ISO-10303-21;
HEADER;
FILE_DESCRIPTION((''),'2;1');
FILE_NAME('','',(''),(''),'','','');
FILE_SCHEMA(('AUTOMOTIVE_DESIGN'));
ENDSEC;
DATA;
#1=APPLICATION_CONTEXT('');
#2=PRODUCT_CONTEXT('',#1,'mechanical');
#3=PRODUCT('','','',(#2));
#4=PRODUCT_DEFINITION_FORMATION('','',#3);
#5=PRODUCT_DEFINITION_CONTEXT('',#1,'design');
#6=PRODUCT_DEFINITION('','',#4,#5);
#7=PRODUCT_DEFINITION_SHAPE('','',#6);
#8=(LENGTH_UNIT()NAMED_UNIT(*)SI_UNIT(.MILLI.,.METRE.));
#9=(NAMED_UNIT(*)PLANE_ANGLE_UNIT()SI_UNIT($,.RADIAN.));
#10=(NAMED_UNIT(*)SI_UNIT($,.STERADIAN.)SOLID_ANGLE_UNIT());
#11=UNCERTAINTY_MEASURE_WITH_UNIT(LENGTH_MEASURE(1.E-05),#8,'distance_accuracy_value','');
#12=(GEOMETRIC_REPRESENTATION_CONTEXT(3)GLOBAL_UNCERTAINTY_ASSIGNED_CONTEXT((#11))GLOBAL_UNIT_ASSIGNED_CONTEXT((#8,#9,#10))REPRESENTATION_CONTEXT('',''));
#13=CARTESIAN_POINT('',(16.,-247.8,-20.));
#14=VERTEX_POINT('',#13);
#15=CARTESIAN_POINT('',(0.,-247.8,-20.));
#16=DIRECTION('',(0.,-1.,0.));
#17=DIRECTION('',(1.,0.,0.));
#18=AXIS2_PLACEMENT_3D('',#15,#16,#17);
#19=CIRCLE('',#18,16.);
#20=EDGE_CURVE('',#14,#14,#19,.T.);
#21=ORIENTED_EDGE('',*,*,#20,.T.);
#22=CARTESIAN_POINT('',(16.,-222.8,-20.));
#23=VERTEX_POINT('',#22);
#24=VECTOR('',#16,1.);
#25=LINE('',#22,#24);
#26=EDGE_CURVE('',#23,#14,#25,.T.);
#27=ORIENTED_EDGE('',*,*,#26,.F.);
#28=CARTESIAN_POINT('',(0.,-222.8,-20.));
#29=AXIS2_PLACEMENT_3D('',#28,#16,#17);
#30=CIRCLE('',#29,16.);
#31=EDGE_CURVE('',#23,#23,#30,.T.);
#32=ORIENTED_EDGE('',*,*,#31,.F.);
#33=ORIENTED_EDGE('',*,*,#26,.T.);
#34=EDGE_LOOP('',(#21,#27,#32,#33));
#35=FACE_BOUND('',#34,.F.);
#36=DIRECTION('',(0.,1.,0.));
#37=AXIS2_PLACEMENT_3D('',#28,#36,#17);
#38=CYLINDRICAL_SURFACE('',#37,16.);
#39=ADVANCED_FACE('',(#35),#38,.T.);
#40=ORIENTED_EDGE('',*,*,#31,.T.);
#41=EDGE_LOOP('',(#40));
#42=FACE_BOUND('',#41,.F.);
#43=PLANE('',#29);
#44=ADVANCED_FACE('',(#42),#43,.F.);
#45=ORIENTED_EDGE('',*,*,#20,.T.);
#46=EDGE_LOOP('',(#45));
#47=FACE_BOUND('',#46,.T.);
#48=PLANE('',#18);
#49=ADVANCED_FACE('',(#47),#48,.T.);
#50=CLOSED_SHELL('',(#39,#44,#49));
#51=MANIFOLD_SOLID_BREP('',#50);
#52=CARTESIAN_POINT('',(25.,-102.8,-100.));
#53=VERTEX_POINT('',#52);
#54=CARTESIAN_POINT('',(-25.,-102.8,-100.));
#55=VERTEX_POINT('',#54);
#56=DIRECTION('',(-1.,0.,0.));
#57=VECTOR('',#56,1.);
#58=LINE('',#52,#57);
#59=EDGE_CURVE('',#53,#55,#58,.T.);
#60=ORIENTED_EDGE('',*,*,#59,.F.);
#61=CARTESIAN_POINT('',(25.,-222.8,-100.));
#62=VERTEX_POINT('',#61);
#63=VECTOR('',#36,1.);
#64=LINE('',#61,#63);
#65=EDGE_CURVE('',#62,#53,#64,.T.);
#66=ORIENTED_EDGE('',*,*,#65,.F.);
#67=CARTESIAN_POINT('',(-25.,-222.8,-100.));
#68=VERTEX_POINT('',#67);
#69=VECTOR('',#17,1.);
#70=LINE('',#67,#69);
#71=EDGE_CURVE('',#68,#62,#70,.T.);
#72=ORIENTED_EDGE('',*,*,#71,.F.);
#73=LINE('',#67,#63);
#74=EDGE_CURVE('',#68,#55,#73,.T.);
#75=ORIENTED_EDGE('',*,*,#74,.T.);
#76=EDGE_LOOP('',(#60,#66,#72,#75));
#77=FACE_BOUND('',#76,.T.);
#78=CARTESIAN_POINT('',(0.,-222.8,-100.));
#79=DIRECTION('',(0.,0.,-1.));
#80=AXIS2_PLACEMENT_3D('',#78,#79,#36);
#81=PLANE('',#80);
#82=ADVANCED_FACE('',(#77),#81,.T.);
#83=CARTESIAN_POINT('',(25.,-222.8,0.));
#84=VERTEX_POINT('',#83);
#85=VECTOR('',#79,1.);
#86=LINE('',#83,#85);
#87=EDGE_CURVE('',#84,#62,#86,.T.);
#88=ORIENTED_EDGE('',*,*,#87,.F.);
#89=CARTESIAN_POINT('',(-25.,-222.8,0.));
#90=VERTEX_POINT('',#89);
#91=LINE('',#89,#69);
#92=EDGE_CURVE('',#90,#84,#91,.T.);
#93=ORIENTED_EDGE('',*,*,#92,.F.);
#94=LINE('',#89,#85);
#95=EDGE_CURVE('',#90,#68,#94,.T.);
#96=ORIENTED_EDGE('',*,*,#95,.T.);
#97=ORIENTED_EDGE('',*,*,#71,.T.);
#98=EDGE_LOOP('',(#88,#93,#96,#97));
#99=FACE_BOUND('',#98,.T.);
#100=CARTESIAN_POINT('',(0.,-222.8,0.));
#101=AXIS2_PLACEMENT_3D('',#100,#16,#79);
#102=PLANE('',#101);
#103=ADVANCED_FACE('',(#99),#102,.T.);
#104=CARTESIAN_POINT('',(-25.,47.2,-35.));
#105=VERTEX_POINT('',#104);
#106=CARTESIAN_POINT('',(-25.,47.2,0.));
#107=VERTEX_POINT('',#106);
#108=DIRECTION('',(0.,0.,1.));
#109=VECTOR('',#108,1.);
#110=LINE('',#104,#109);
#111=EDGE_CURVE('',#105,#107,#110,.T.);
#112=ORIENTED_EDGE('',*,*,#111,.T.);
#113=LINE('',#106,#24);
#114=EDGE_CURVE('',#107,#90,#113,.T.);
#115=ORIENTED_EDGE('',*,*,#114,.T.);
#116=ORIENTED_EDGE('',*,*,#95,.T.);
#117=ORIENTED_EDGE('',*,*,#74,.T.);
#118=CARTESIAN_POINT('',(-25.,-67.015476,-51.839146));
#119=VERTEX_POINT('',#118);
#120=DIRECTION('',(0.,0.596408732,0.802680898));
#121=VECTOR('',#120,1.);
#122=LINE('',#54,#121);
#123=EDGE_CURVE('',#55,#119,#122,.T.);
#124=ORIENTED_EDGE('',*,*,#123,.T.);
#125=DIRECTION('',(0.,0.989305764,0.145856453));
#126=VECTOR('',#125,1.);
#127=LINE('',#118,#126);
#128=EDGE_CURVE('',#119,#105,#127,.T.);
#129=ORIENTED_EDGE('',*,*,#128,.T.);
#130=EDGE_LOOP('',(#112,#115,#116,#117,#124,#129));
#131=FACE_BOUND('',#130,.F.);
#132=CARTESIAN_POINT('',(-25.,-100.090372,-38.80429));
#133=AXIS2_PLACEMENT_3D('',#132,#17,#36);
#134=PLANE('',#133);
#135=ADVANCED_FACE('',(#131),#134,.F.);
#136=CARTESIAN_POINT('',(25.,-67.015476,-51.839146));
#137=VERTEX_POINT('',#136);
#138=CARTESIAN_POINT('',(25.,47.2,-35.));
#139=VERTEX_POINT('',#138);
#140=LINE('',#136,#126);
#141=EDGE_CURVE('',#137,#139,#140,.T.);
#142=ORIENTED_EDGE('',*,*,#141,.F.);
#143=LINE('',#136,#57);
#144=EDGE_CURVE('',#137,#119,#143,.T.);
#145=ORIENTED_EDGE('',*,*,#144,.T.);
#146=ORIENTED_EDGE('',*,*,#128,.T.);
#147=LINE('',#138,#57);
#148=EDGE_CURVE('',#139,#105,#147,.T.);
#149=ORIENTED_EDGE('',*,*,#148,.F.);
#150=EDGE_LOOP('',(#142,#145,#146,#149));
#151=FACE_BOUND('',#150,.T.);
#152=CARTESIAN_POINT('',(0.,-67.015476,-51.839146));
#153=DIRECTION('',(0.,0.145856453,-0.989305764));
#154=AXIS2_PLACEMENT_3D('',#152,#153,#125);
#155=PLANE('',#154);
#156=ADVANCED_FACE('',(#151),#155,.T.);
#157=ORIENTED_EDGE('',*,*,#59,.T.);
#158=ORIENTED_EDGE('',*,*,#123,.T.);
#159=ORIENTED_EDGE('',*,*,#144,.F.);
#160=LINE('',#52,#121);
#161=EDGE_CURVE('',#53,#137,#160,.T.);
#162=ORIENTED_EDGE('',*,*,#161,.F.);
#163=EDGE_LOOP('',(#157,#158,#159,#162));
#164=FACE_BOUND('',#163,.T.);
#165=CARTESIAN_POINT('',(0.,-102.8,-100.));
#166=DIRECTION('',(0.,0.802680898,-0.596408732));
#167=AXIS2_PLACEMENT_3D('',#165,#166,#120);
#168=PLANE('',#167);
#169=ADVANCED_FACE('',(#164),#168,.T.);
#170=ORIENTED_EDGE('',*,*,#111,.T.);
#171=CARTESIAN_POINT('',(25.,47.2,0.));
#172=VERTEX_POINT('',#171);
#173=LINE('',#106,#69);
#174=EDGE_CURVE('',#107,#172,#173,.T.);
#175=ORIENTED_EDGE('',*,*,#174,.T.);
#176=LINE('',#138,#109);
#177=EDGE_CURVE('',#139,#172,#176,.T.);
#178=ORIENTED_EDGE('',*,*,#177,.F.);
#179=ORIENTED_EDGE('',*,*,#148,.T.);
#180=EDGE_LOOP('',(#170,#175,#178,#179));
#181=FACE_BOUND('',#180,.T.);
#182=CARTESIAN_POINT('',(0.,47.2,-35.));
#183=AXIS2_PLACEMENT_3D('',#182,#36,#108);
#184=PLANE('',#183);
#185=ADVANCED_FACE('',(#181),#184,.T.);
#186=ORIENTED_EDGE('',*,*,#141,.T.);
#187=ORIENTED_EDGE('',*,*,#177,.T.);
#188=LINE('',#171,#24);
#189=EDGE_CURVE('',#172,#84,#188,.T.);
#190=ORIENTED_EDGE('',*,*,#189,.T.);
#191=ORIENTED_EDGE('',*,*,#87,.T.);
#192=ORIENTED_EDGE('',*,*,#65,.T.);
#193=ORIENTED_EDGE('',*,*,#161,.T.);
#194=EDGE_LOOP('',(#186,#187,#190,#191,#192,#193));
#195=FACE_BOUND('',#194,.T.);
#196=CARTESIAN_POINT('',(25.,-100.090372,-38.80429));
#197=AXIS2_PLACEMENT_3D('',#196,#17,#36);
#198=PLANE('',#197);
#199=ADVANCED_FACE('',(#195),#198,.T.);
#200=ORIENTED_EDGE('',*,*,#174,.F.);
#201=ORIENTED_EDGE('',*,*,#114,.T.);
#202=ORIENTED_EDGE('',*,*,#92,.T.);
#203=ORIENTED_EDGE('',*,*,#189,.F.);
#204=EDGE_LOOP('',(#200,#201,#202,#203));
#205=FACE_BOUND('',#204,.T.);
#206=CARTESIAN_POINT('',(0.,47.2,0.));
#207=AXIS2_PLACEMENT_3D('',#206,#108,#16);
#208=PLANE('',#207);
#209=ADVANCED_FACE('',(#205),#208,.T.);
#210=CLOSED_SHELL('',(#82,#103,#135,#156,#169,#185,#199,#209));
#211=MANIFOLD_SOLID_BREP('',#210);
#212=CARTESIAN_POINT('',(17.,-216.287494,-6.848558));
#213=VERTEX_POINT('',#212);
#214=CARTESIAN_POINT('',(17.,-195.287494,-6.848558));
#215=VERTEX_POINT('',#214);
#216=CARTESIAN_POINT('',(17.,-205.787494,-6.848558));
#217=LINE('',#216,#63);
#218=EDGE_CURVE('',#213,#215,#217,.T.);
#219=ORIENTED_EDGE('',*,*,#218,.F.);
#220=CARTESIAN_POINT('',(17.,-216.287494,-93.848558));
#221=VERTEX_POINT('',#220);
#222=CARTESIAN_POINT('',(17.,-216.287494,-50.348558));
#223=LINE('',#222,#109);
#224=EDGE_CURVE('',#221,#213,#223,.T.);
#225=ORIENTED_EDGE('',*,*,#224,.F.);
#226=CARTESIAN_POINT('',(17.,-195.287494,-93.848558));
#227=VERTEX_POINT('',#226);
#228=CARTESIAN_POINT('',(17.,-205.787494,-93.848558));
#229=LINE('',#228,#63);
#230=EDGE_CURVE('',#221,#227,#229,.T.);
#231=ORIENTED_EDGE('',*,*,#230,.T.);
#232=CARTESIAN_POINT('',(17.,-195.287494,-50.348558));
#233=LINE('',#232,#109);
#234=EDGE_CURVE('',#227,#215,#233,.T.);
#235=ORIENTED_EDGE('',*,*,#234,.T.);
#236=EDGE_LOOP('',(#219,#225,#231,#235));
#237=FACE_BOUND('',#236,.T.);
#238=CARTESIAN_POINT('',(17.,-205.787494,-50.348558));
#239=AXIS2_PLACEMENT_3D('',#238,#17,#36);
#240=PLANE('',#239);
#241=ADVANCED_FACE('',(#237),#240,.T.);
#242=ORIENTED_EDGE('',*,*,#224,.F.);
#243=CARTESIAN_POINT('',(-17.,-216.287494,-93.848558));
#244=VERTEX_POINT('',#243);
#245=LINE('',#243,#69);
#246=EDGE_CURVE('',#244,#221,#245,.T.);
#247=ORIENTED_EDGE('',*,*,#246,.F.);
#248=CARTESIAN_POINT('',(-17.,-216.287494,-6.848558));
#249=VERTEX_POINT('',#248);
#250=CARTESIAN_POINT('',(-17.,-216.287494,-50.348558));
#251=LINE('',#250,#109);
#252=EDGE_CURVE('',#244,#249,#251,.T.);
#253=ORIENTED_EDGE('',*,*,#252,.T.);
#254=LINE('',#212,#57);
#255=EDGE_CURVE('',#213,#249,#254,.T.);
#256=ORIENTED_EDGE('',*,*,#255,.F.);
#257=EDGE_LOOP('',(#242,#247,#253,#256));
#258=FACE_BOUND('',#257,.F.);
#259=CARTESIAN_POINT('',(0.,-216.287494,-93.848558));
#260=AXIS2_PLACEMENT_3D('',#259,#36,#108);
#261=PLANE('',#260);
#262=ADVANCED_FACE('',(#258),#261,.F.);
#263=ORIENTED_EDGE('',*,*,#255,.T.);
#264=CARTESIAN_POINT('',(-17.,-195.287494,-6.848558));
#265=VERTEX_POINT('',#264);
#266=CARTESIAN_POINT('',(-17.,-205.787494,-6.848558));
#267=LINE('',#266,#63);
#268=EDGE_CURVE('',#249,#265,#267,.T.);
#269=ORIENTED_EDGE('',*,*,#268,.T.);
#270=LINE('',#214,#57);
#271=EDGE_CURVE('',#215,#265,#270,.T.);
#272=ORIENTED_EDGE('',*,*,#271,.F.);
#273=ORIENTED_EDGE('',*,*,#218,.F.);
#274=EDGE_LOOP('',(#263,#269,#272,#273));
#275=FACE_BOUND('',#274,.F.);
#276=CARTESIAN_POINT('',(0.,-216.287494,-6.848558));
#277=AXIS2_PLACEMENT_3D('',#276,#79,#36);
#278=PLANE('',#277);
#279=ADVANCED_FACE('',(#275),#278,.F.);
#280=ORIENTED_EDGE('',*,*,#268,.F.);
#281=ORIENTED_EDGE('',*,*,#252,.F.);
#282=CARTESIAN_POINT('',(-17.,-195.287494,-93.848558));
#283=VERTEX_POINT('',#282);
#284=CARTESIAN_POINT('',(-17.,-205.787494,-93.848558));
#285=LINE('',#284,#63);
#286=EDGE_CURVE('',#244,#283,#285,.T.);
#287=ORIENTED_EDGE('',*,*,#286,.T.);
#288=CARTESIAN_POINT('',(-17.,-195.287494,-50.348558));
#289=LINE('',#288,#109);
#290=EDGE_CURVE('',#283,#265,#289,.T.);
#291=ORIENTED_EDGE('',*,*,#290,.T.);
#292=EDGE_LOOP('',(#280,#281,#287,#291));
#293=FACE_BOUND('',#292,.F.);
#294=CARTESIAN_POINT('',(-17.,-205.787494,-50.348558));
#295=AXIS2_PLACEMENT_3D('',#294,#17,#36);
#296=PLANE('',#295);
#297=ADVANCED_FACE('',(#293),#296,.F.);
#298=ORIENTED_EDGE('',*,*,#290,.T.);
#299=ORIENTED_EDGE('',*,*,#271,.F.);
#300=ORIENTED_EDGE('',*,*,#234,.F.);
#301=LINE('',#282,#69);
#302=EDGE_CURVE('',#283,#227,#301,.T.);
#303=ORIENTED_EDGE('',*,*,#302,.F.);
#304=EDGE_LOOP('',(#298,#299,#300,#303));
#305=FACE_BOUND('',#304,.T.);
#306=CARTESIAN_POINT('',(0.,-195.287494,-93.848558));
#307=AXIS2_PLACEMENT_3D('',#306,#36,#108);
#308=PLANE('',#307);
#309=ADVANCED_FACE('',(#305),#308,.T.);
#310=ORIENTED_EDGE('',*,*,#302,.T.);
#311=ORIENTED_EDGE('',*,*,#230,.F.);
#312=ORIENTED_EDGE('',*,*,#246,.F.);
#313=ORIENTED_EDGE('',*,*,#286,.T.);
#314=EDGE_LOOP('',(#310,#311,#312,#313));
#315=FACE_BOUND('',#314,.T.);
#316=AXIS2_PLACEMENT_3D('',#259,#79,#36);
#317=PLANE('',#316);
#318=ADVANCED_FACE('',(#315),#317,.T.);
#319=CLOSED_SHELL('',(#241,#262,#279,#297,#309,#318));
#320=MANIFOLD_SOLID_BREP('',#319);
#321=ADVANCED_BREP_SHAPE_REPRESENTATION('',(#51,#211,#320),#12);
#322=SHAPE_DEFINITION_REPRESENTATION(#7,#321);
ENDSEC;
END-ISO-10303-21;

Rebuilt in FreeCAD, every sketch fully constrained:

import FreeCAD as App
import Part
import Sketcher

V = App.Vector
Q = App.Units.Quantity

doc = App.newDocument("Part")
body = doc.addObject("PartDesign::Body", "Body")

# Sketch on YZ plane
sketch1 = body.newObject("Sketcher::SketchObject", "Sketch")
sketch1.AttachmentSupport = (doc.getObject("YZ_Plane"), [""])
sketch1.MapMode = "FlatFace"
sketch1.addGeometry([
    Part.LineSegment(V(47, -35, 0), V(47, 0, 0)),  # 0
    Part.LineSegment(V(47, 0, 0), V(-223, 0, 0)),  # 1
    Part.LineSegment(V(-223, 0, 0), V(-223, -100, 0)),  # 2
    Part.LineSegment(V(-223, -100, 0), V(-103, -100, 0)),  # 3
    Part.LineSegment(V(-103, -100, 0), V(-67, -52, 0)),  # 4
    Part.LineSegment(V(-67, -52, 0), V(47, -35, 0)),  # 5
], False)
sketch1.addConstraint([
    Sketcher.Constraint("Coincident", 0, 2, 1, 1),
    Sketcher.Constraint("Coincident", 1, 2, 2, 1),
    Sketcher.Constraint("Coincident", 2, 2, 3, 1),
    Sketcher.Constraint("Coincident", 3, 2, 4, 1),
    Sketcher.Constraint("Coincident", 4, 2, 5, 1),
    Sketcher.Constraint("Coincident", 5, 2, 0, 1),
    Sketcher.Constraint("Vertical", 0),
    Sketcher.Constraint("Horizontal", 1),
    Sketcher.Constraint("Vertical", 2),
    Sketcher.Constraint("Horizontal", 3),
    Sketcher.Constraint("PointOnObject", 0, 2, -1),
    Sketcher.Constraint("DistanceX", 1, 2, 1, 1, Q("270 mm")),
    Sketcher.Constraint("DistanceX", 3, 1, 3, 2, Q("120 mm")),
    Sketcher.Constraint("DistanceY", 0, 1, 0, 2, Q("35 mm")),
    Sketcher.Constraint("DistanceY", 2, 2, 2, 1, Q("100 mm")),
    Sketcher.Constraint("Distance", 4, Q("60 mm")),
    Sketcher.Constraint("DistanceX", -1, 1, 0, 2, Q("47.2 mm")),
    Sketcher.Constraint("Distance", 5, Q("115.450127 mm")),
])
pad1 = body.newObject("PartDesign::Pad", "Pad")
pad1.Profile = sketch1
pad1.Length = 50
pad1.Midplane = True
body2 = doc.addObject("PartDesign::Body", "Body001")

# Sketch on YZ plane
sketch2 = body2.newObject("Sketcher::SketchObject", "Sketch001")
sketch2.AttachmentSupport = (doc.getObject("YZ_Plane001"), [""])
sketch2.MapMode = "FlatFace"
sketch2.addGeometry([
    Part.LineSegment(V(-216, -7, 0), V(-216, -94, 0)),
    Part.LineSegment(V(-216, -94, 0), V(-195, -94, 0)),
    Part.LineSegment(V(-195, -94, 0), V(-195, -7, 0)),
    Part.LineSegment(V(-195, -7, 0), V(-216, -7, 0)),
], False)
sketch2.addConstraint([
    Sketcher.Constraint("Coincident", 0, 2, 1, 1),
    Sketcher.Constraint("Coincident", 1, 2, 2, 1),
    Sketcher.Constraint("Coincident", 2, 2, 3, 1),
    Sketcher.Constraint("Coincident", 3, 2, 0, 1),
    Sketcher.Constraint("Vertical", 0),
    Sketcher.Constraint("Horizontal", 1),
    Sketcher.Constraint("Vertical", 2),
    Sketcher.Constraint("Horizontal", 3),
    Sketcher.Constraint("DistanceX", 1, 1, 1, 2, Q("21 mm")),
    Sketcher.Constraint("DistanceY", 0, 2, 0, 1, Q("87 mm")),
    Sketcher.Constraint("DistanceX", 0, 2, -1, 1, Q("216.287494 mm")),
    Sketcher.Constraint("DistanceY", 0, 2, -1, 1, Q("93.848558 mm")),
])
pad2 = body2.newObject("PartDesign::Pad", "Pad001")
pad2.Profile = sketch2
pad2.Length = 34
pad2.Midplane = True
body3 = doc.addObject("PartDesign::Body", "Body002")

# Sketch on XZ plane
sketch3 = body3.newObject("Sketcher::SketchObject", "Sketch002")
sketch3.AttachmentSupport = (doc.getObject("XZ_Plane002"), [""])
sketch3.MapMode = "FlatFace"
sketch3.AttachmentOffset = App.Placement(V(0, 0, 222.8), App.Rotation())
sketch3.addGeometry(Part.Circle(V(0, -20, 0), V(0, 0, 1), 16), False)
sketch3.addConstraint([
    Sketcher.Constraint("PointOnObject", 0, 3, -2),
    Sketcher.Constraint("Diameter", 0, Q("32 mm")),
    Sketcher.Constraint("DistanceY", 0, 3, -1, 1, Q("20 mm")),
])
pad3 = body3.newObject("PartDesign::Pad", "Pad002")
pad3.Profile = sketch3
pad3.Length = 25

doc.recompute()
